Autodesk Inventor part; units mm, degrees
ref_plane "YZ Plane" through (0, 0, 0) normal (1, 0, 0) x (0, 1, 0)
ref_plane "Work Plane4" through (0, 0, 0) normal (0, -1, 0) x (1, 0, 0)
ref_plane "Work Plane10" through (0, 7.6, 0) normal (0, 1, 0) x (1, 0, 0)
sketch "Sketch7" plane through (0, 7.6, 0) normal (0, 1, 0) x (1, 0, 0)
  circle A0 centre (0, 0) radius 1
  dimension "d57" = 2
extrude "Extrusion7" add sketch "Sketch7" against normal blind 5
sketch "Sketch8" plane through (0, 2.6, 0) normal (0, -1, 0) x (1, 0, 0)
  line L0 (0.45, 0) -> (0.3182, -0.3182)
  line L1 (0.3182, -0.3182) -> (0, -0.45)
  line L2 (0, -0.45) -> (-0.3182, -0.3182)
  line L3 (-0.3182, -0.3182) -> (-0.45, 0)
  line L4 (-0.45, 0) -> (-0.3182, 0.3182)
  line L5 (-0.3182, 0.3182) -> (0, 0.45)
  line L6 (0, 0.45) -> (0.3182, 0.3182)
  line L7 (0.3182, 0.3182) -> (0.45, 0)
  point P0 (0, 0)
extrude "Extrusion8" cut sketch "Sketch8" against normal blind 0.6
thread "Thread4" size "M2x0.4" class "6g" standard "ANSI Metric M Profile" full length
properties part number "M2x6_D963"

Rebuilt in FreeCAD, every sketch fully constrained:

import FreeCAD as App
import Part
import Sketcher
from FreeCAD import Vector
Q = App.Units.Quantity

doc = App.newDocument("Part")
body = doc.addObject("PartDesign::Body", "Body")

sketch1 = body.newObject("Sketcher::SketchObject", "Sketch")
sketch1.AttachmentSupport = (doc.getObject("XZ_Plane"), [""])
sketch1.MapMode = "FlatFace"
sketch1.AttachmentOffset = App.Placement(Vector(0, 0, -7.6), App.Rotation())
sketch1.addGeometry(Part.Circle(Vector(0, 0, 0), Vector(0, 0, 1), 1), False)
sketch1.addConstraint([
    Sketcher.Constraint("Coincident", 0, 3, -1, 1),
    Sketcher.Constraint("Diameter", 0, Q("2 mm")),
])
pad1 = body.newObject("PartDesign::Pad", "Pad")
pad1.Profile = sketch1
pad1.Length = 5

sketch2 = body.newObject("Sketcher::SketchObject", "Sketch001")
sketch2.AttachmentSupport = (doc.getObject("XZ_Plane"), [""])
sketch2.MapMode = "FlatFace"
sketch2.AttachmentOffset = App.Placement(Vector(0, 0, -2.6), App.Rotation())
sketch2.addGeometry([
    Part.LineSegment(Vector(0.32, -0.32, 0), Vector(0.45, 0, 0)),
    Part.LineSegment(Vector(0.45, 0, 0), Vector(0.32, 0.32, 0)),
    Part.LineSegment(Vector(0.32, 0.32, 0), Vector(0, 0.45, 0)),
    Part.LineSegment(Vector(0, 0.45, 0), Vector(-0.32, 0.32, 0)),
    Part.LineSegment(Vector(-0.32, 0.32, 0), Vector(-0.45, 0, 0)),
    Part.LineSegment(Vector(-0.45, 0, 0), Vector(-0.32, -0.32, 0)),
    Part.LineSegment(Vector(-0.32, -0.32, 0), Vector(0, -0.45, 0)),
    Part.LineSegment(Vector(0, -0.45, 0), Vector(0.32, -0.32, 0)),
], False)
sketch2.addConstraint([
    Sketcher.Constraint("Coincident", 0, 2, 1, 1),
    Sketcher.Constraint("Coincident", 1, 2, 2, 1),
    Sketcher.Constraint("Coincident", 2, 2, 3, 1),
    Sketcher.Constraint("Coincident", 3, 2, 4, 1),
    Sketcher.Constraint("Coincident", 4, 2, 5, 1),
    Sketcher.Constraint("Coincident", 5, 2, 6, 1),
    Sketcher.Constraint("Coincident", 6, 2, 7, 1),
    Sketcher.Constraint("Coincident", 7, 2, 0, 1),
    Sketcher.Constraint("Symmetric", 0, 2, 4, 2, -1, 1),
    Sketcher.Constraint("Symmetric", 1, 2, 5, 2, -1, 1),
    Sketcher.Constraint("Symmetric", 2, 2, 6, 2, -1, 1),
    Sketcher.Constraint("Symmetric", 3, 2, 7, 2, -1, 1),
    Sketcher.Constraint("Symmetric", 1, 2, 3, 2, -2),
    Sketcher.Constraint("PointOnObject", 0, 2, -1),
    Sketcher.Constraint("PointOnObject", 2, 2, -2),
    Sketcher.Constraint("Perpendicular", 0, 2),
    Sketcher.Constraint("Equal", 1, 2),
    Sketcher.Constraint("Angle", 0, Q("67.5004 deg")),
    Sketcher.Constraint("DistanceX", 4, 2, 0, 2, Q("0.9 mm")),
])
pocket1 = body.newObject("PartDesign::Pocket", "Pocket")
pocket1.Profile = sketch2
pocket1.Length = 0.6

doc.recompute()
